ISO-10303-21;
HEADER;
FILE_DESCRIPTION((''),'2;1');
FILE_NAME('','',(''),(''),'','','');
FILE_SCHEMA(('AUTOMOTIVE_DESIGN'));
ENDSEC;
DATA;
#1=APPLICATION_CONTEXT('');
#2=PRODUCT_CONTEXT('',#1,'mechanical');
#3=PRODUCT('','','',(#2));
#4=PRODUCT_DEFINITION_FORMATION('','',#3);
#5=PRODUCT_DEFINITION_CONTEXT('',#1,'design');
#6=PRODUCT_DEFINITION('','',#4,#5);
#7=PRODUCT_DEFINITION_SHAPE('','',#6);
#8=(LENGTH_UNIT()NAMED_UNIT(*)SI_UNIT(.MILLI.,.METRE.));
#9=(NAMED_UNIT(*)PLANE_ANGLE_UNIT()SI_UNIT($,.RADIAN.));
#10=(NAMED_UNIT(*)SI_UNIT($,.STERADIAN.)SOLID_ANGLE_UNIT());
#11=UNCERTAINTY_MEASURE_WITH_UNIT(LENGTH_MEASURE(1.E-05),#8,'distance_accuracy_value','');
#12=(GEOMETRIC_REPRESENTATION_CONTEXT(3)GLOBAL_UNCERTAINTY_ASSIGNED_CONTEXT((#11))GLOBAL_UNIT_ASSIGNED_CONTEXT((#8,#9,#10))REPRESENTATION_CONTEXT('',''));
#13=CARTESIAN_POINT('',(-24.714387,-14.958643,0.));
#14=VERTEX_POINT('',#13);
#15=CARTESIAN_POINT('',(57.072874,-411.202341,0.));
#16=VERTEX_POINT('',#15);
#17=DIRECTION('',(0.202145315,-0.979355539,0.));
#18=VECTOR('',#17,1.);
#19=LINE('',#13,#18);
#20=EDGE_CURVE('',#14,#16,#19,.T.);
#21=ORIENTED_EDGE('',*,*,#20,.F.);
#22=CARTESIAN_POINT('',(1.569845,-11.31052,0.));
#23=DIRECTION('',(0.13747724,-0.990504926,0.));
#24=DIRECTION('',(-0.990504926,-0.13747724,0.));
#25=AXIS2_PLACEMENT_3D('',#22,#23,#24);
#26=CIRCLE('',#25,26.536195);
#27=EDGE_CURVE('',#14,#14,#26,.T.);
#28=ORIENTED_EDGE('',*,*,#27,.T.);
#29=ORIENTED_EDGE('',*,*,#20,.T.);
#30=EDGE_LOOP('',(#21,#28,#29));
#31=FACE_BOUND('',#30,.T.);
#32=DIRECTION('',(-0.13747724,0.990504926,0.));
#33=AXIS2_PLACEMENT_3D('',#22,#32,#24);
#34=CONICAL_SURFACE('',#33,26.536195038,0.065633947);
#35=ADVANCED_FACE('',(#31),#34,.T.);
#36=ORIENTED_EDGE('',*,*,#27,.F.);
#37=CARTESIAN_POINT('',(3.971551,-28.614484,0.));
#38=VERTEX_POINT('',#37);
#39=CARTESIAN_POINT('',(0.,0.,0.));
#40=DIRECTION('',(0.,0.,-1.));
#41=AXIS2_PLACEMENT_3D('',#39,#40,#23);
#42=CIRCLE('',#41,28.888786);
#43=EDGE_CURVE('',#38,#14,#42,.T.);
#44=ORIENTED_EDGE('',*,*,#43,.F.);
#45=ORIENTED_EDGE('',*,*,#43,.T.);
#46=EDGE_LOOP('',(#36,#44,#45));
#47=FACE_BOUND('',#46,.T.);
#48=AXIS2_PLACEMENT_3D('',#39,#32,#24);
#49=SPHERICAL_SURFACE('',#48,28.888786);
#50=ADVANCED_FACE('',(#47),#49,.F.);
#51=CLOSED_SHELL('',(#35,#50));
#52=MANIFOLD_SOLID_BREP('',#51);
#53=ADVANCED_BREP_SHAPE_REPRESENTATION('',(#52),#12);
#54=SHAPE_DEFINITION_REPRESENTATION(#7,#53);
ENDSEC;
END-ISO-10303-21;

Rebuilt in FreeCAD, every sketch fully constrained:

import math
import FreeCAD as App
import Part
import Sketcher

doc = App.newDocument("Part")
body = doc.addObject("PartDesign::Body", "Body")

sketch1 = doc.addObject("Sketcher::SketchObject", "Sketch")
body.addObject(sketch1)
sketch1.AttachmentSupport = (doc.XY_Plane, [""])
sketch1.MapMode = "FlatFace"
sketch1.addGeometry(Part.LineSegment(App.Vector(57, -411, 0), App.Vector(4, -29, 0)), False)
sketch1.addGeometry(Part.ArcOfCircle(Part.Circle(App.Vector(0, 0, 0), App.Vector(0, 0, 1), 29), math.radians(-149), math.radians(-82)), False)
sketch1.addGeometry(Part.LineSegment(App.Vector(-25, -15, 0), App.Vector(57, -411, 0)), False)
sketch1.addGeometry(Part.LineSegment(App.Vector(0, 0, 0), App.Vector(57, -411, 0)), True)
sketch1.addConstraint(Sketcher.Constraint("Coincident", 0, 2, 1, 2))
sketch1.addConstraint(Sketcher.Constraint("Coincident", 1, 1, 2, 1))
sketch1.addConstraint(Sketcher.Constraint("Coincident", 2, 2, 0, 1))
sketch1.addConstraint(Sketcher.Constraint("Coincident", 1, 3, -1, 1))
sketch1.addConstraint(Sketcher.Constraint("Coincident", 3, 1, -1, 1))
sketch1.addConstraint(Sketcher.Constraint("Coincident", 3, 2, 2, 2))
sketch1.addConstraint(Sketcher.Constraint("Parallel", 0, 3))
sketch1.addConstraint(Sketcher.Constraint("Radius", 1, 28.888786))
sketch1.addConstraint(Sketcher.Constraint("DistanceY", 2, 2, 1, 1, 396.243698))
sketch1.addConstraint(Sketcher.Constraint("Distance", 0, 386.25538))
sketch1.addConstraint(Sketcher.Constraint("DistanceX", -1, 1, 0, 2, 3.971551))
revolution = doc.addObject("PartDesign::Revolution", "Revolution")
body.addObject(revolution)
revolution.Profile = sketch1
revolution.ReferenceAxis = (sketch1, ["Axis0"])
revolution.Angle = 360

doc.recompute()
